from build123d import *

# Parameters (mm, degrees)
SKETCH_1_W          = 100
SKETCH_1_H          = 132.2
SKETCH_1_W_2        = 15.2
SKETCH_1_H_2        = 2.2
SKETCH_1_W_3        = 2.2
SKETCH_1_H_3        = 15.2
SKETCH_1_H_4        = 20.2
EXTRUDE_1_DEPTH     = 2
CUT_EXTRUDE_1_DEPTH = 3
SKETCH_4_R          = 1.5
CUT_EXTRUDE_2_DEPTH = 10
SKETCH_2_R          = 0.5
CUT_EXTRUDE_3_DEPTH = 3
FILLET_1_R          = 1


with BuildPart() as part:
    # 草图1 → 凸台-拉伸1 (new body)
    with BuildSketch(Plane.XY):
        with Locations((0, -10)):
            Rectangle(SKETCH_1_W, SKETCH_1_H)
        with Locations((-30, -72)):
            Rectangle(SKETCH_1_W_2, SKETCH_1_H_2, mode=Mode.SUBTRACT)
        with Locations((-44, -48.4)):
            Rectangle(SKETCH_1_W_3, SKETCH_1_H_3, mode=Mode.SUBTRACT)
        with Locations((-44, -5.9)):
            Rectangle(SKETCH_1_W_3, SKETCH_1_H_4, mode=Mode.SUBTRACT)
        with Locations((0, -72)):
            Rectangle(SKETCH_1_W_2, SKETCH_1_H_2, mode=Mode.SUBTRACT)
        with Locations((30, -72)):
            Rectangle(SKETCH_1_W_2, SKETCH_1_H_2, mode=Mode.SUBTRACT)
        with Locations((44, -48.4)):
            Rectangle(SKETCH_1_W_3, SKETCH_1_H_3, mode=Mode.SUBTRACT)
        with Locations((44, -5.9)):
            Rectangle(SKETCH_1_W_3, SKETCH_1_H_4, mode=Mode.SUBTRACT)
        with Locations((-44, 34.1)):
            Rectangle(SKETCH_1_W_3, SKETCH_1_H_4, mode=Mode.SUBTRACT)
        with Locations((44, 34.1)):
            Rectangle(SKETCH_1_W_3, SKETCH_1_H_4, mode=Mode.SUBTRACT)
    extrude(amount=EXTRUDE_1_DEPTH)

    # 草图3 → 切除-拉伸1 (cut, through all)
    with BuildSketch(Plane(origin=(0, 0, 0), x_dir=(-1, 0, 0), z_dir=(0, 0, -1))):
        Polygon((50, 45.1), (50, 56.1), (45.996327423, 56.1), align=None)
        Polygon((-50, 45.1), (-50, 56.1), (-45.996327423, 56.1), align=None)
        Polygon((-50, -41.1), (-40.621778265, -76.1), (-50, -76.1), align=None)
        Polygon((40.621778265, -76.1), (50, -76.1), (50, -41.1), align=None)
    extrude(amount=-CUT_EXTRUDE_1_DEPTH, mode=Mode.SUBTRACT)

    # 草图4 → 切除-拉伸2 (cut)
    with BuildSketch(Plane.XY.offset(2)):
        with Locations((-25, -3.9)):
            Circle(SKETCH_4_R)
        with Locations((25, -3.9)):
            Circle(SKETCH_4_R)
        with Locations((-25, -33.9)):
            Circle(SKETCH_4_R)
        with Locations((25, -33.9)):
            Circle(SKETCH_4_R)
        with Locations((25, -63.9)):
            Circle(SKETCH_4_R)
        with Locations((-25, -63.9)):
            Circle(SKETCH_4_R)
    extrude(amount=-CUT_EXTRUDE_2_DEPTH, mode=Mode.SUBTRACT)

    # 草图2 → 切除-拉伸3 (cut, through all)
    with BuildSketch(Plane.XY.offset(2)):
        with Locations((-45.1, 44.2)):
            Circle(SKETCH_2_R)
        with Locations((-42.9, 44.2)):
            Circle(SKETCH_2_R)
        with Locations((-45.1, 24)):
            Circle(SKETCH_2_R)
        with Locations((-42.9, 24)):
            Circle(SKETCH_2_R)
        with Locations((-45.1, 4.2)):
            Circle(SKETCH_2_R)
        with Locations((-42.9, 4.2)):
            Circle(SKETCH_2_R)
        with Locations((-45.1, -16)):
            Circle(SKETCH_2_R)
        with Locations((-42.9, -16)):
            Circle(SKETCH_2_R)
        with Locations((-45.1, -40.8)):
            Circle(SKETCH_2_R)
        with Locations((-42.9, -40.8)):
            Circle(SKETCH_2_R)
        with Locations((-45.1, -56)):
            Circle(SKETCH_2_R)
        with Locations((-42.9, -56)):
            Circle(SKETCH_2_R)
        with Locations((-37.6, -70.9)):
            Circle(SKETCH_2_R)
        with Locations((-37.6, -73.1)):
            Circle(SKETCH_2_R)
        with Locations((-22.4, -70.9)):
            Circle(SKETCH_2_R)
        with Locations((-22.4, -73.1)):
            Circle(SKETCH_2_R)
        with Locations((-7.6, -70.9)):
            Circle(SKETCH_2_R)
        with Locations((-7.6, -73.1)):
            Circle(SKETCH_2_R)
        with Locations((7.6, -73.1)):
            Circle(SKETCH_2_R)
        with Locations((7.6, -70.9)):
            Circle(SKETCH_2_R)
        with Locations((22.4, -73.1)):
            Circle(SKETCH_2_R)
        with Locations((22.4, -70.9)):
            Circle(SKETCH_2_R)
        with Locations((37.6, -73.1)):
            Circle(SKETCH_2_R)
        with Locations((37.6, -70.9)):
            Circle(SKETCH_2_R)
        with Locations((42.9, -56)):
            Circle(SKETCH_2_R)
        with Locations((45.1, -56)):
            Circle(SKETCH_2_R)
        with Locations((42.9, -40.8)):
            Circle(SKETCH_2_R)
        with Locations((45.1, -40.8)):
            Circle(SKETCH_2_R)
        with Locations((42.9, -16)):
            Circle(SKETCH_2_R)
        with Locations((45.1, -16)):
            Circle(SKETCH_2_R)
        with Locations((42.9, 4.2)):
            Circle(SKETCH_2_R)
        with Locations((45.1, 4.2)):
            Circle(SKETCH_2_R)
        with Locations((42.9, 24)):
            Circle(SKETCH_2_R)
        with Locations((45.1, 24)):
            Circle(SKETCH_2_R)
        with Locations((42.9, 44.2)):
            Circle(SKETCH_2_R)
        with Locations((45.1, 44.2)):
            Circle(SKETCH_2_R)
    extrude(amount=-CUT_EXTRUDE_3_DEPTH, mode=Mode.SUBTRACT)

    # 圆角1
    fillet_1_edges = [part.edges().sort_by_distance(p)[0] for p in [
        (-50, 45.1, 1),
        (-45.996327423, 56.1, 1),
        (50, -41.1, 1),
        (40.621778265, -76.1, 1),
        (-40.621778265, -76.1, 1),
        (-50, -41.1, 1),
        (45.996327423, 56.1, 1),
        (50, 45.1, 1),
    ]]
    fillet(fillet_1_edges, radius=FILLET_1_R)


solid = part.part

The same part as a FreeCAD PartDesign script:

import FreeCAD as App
import Part
import Sketcher
from FreeCAD import Vector
Q = App.Units.Quantity


def edges_at(feature, points):
    """Names of the edges that pass closest to the given points."""
    edges = feature.Shape.Edges
    near = lambda p: min(range(len(edges)), key=lambda i: edges[i].distToShape(Part.Vertex(*p))[0])
    return sorted({f"Edge{near(p) + 1}" for p in points})


def add_polygon(sketch, points):
    """Adds a closed chain of lines whose ends are joined by coincident constraints."""
    first, n = sketch.GeometryCount, len(points)
    for a, b in zip(points, points[1:] + points[:1]):
        sketch.addGeometry(Part.LineSegment(App.Vector(*a, 0), App.Vector(*b, 0)), False)
    for i in range(n):
        sketch.addConstraint(Sketcher.Constraint("Coincident", first + i, 2, first + (i + 1) % n, 1))

doc = App.newDocument("Part")
body = doc.addObject("PartDesign::Body", "Body")

# Sketch on XY plane
sketch1 = body.newObject("Sketcher::SketchObject", "Sketch")
sketch1.AttachmentSupport = (doc.getObject("XY_Plane"), [""])
sketch1.MapMode = "FlatFace"
add_polygon(sketch1, [(-50, 56.1), (-50, -76.1), (50, -76.1), (50, 56.1)])  # lines 0-3
add_polygon(sketch1, [(-22.4, -73.1), (-37.6, -73.1), (-37.6, -70.9), (-22.4, -70.9)])  # lines 4-7
add_polygon(sketch1, [(-42.9, -56), (-45.1, -56), (-45.1, -40.8), (-42.9, -40.8)])  # lines 8-11
add_polygon(sketch1, [(7.6, -73.1), (-7.6, -73.1), (-7.6, -70.9), (7.6, -70.9)])  # lines 12-15
add_polygon(sketch1, [(37.6, -73.1), (22.4, -73.1), (22.4, -70.9), (37.6, -70.9)])  # lines 16-19
add_polygon(sketch1, [(45.1, -56), (42.9, -56), (42.9, -40.8), (45.1, -40.8)])  # lines 20-23
add_polygon(sketch1, [(-42.9, -16), (-45.1, -16), (-45.1, 4.2), (-42.9, 4.2)])  # lines 24-27
add_polygon(sketch1, [(-42.9, 24), (-45.1, 24), (-45.1, 44.2), (-42.9, 44.2)])  # lines 28-31
add_polygon(sketch1, [(45.1, -16), (42.9, -16), (42.9, 4.2), (45.1, 4.2)])  # lines 32-35
add_polygon(sketch1, [(45.1, 24), (42.9, 24), (42.9, 44.2), (45.1, 44.2)])  # lines 36-39
sketch1.addConstraint(Sketcher.Constraint("Vertical", 0))
sketch1.addConstraint(Sketcher.Constraint("Horizontal", 1))
sketch1.addConstraint(Sketcher.Constraint("Vertical", 2))
sketch1.addConstraint(Sketcher.Constraint("Horizontal", 3))
sketch1.addConstraint(Sketcher.Constraint("Horizontal", 4))
sketch1.addConstraint(Sketcher.Constraint("Vertical", 5))
sketch1.addConstraint(Sketcher.Constraint("Horizontal", 6))
sketch1.addConstraint(Sketcher.Constraint("Vertical", 7))
sketch1.addConstraint(Sketcher.Constraint("Horizontal", 8))
sketch1.addConstraint(Sketcher.Constraint("Vertical", 9))
sketch1.addConstraint(Sketcher.Constraint("Horizontal", 10))
sketch1.addConstraint(Sketcher.Constraint("Vertical", 11))
sketch1.addConstraint(Sketcher.Constraint("Horizontal", 12))
sketch1.addConstraint(Sketcher.Constraint("Vertical", 13))
sketch1.addConstraint(Sketcher.Constraint("Horizontal", 14))
sketch1.addConstraint(Sketcher.Constraint("Vertical", 15))
sketch1.addConstraint(Sketcher.Constraint("Horizontal", 16))
sketch1.addConstraint(Sketcher.Constraint("Vertical", 17))
sketch1.addConstraint(Sketcher.Constraint("Horizontal", 18))
sketch1.addConstraint(Sketcher.Constraint("Vertical", 19))
sketch1.addConstraint(Sketcher.Constraint("Horizontal", 20))
sketch1.addConstraint(Sketcher.Constraint("Vertical", 21))
sketch1.addConstraint(Sketcher.Constraint("Horizontal", 22))
sketch1.addConstraint(Sketcher.Constraint("Vertical", 23))
sketch1.addConstraint(Sketcher.Constraint("Horizontal", 24))
sketch1.addConstraint(Sketcher.Constraint("Vertical", 25))
sketch1.addConstraint(Sketcher.Constraint("Horizontal", 26))
sketch1.addConstraint(Sketcher.Constraint("Vertical", 27))
sketch1.addConstraint(Sketcher.Constraint("Horizontal", 28))
sketch1.addConstraint(Sketcher.Constraint("Vertical", 29))
sketch1.addConstraint(Sketcher.Constraint("Horizontal", 30))
sketch1.addConstraint(Sketcher.Constraint("Vertical", 31))
sketch1.addConstraint(Sketcher.Constraint("Horizontal", 32))
sketch1.addConstraint(Sketcher.Constraint("Vertical", 33))
sketch1.addConstraint(Sketcher.Constraint("Horizontal", 34))
sketch1.addConstraint(Sketcher.Constraint("Vertical", 35))
sketch1.addConstraint(Sketcher.Constraint("Horizontal", 36))
sketch1.addConstraint(Sketcher.Constraint("Vertical", 37))
sketch1.addConstraint(Sketcher.Constraint("Horizontal", 38))
sketch1.addConstraint(Sketcher.Constraint("Vertical", 39))
sketch1.addConstraint(Sketcher.Constraint("Symmetric", 7, 2, 16, 2, -2))
sketch1.addConstraint(Sketcher.Constraint("Symmetric", 5, 2, 18, 2, -2))
sketch1.addConstraint(Sketcher.Constraint("Symmetric", 11, 2, 20, 2, -2))
sketch1.addConstraint(Sketcher.Constraint("Symmetric", 9, 2, 22, 2, -2))
sketch1.addConstraint(Sketcher.Constraint("Symmetric", 27, 2, 32, 2, -2))
sketch1.addConstraint(Sketcher.Constraint("Symmetric", 25, 2, 34, 2, -2))
sketch1.addConstraint(Sketcher.Constraint("Symmetric", 31, 2, 36, 2, -2))
sketch1.addConstraint(Sketcher.Constraint("Symmetric", 29, 2, 38, 2, -2))
sketch1.addConstraint(Sketcher.Constraint("Horizontal", 7, 2, 12, 2))
sketch1.addConstraint(Sketcher.Constraint("Horizontal", 6, 2, 13, 2))
sketch1.addConstraint(Sketcher.Constraint("Vertical", 9, 2, 24, 2))
sketch1.addConstraint(Sketcher.Constraint("Vertical", 11, 2, 26, 2))
sketch1.addConstraint(Sketcher.Constraint("Vertical", 25, 2, 28, 2))
sketch1.addConstraint(Sketcher.Constraint("Vertical", 27, 2, 30, 2))
sketch1.addConstraint(Sketcher.Constraint("Equal", 6, 12))
sketch1.addConstraint(Sketcher.Constraint("Equal", 38, 5))
sketch1.addConstraint(Sketcher.Constraint("Equal", 18, 9))
sketch1.addConstraint(Sketcher.Constraint("Equal", 27, 29))
sketch1.addConstraint(Sketcher.Constraint("DistanceX", 1, 1, 1, 2, Q("100 mm")))
sketch1.addConstraint(Sketcher.Constraint("DistanceX", 4, 2, 4, 1, Q("15.2 mm")))
sketch1.addConstraint(Sketcher.Constraint("DistanceX", 8, 2, 8, 1, Q("2.2 mm")))
sketch1.addConstraint(Sketcher.Constraint("DistanceY", 0, 2, 0, 1, Q("132.2 mm")))
sketch1.addConstraint(Sketcher.Constraint("DistanceY", 25, 1, 25, 2, Q("20.2 mm")))
sketch1.addConstraint(Sketcher.Constraint("DistanceX", 0, 2, -1, 1, Q("50 mm")))
sketch1.addConstraint(Sketcher.Constraint("DistanceY", 8, 2, -1, 1, Q("56 mm")))
sketch1.addConstraint(Sketcher.Constraint("DistanceY", 24, 2, -1, 1, Q("16 mm")))
sketch1.addConstraint(Sketcher.Constraint("DistanceY", -1, 1, 28, 2, Q("24 mm")))
sketch1.addConstraint(Sketcher.Constraint("DistanceY", 0, 2, 4, 2, Q("3 mm")))
sketch1.addConstraint(Sketcher.Constraint("DistanceX", 4, 2, 12, 2, Q("30 mm")))
sketch1.addConstraint(Sketcher.Constraint("DistanceX", 12, 2, 16, 2, Q("30 mm")))
sketch1.addConstraint(Sketcher.Constraint("DistanceY", 0, 2, -1, 1, Q("76.1 mm")))
sketch1.addConstraint(Sketcher.Constraint("DistanceX", 8, 2, -1, 1, Q("45.1 mm")))
pad1 = body.newObject("PartDesign::Pad", "Pad")
pad1.Profile = sketch1
pad1.Length = 2

# Sketch on XY plane
sketch2 = body.newObject("Sketcher::SketchObject", "Sketch001")
sketch2.AttachmentSupport = (doc.getObject("XY_Plane"), [""])
sketch2.MapMode = "FlatFace"
add_polygon(sketch2, [(-50, 45.1), (-50, 56.1), (-46, 56.1)])  # lines 0-2
add_polygon(sketch2, [(50, 56.1), (50, 45.1), (46, 56.1)])  # lines 3-5
add_polygon(sketch2, [(40.6, -76.1), (50, -41.1), (50, -76.1)])  # lines 6-8
add_polygon(sketch2, [(-40.6, -76.1), (-50, -76.1), (-50, -41.1)])  # lines 9-11
sketch2.addConstraint(Sketcher.Constraint("Vertical", 0))
sketch2.addConstraint(Sketcher.Constraint("Horizontal", 1))
sketch2.addConstraint(Sketcher.Constraint("Vertical", 3))
sketch2.addConstraint(Sketcher.Constraint("Horizontal", 5))
sketch2.addConstraint(Sketcher.Constraint("Vertical", 7))
sketch2.addConstraint(Sketcher.Constraint("Horizontal", 8))
sketch2.addConstraint(Sketcher.Constraint("Horizontal", 9))
sketch2.addConstraint(Sketcher.Constraint("Vertical", 10))
sketch2.addConstraint(Sketcher.Constraint("Symmetric", 2, 2, 3, 2, -2))
sketch2.addConstraint(Sketcher.Constraint("Symmetric", 1, 2, 4, 2, -2))
sketch2.addConstraint(Sketcher.Constraint("Symmetric", 7, 2, 9, 2, -2))
sketch2.addConstraint(Sketcher.Constraint("Horizontal", 6, 2, 10, 2))
sketch2.addConstraint(Sketcher.Constraint("Vertical", 5, 2, 6, 2))
sketch2.addConstraint(Sketcher.Constraint("Equal", 8, 9))
sketch2.addConstraint(Sketcher.Constraint("DistanceY", 0, 1, 0, 2, Q("11 mm")))
sketch2.addConstraint(Sketcher.Constraint("DistanceY", 7, 2, 7, 1, Q("35 mm")))
sketch2.addConstraint(Sketcher.Constraint("Angle", 2, Q("-110 deg")))
sketch2.addConstraint(Sketcher.Constraint("Angle", 6, Q("75 deg")))
sketch2.addConstraint(Sketcher.Constraint("DistanceX", 0, 2, -1, 1, Q("50 mm")))
sketch2.addConstraint(Sketcher.Constraint("DistanceY", -1, 1, 0, 2, Q("56.1 mm")))
sketch2.addConstraint(Sketcher.Constraint("DistanceY", 6, 2, -1, 1, Q("41.1 mm")))
pocket1 = body.newObject("PartDesign::Pocket", "Pocket")
pocket1.Profile = sketch2
pocket1.Type = "ThroughAll"
pocket1.Reversed = True

# Sketch on XY plane
sketch3 = body.newObject("Sketcher::SketchObject", "Sketch002")
sketch3.AttachmentSupport = (doc.getObject("XY_Plane"), [""])
sketch3.MapMode = "FlatFace"
sketch3.AttachmentOffset = App.Placement(Vector(0, 0, 2), App.Rotation())
sketch3.addGeometry(Part.Circle(Vector(-25, -3.9, 0), Vector(0, 0, 1), 1.5), False)
sketch3.addGeometry(Part.Circle(Vector(25, -3.9, 0), Vector(0, 0, 1), 1.5), False)
sketch3.addGeometry(Part.Circle(Vector(-25, -33.9, 0), Vector(0, 0, 1), 1.5), False)
sketch3.addGeometry(Part.Circle(Vector(25, -33.9, 0), Vector(0, 0, 1), 1.5), False)
sketch3.addGeometry(Part.Circle(Vector(25, -63.9, 0), Vector(0, 0, 1), 1.5), False)
sketch3.addGeometry(Part.Circle(Vector(-25, -63.9, 0), Vector(0, 0, 1), 1.5), False)
sketch3.addConstraint(Sketcher.Constraint("Equal", 0, 1))
sketch3.addConstraint(Sketcher.Constraint("Equal", 1, 2))
sketch3.addConstraint(Sketcher.Constraint("Equal", 2, 3))
sketch3.addConstraint(Sketcher.Constraint("Equal", 3, 4))
sketch3.addConstraint(Sketcher.Constraint("Equal", 4, 5))
sketch3.addConstraint(Sketcher.Constraint("Symmetric", 0, 3, 1, 3, -2))
sketch3.addConstraint(Sketcher.Constraint("Symmetric", 2, 3, 3, 3, -2))
sketch3.addConstraint(Sketcher.Constraint("Symmetric", 4, 3, 5, 3, -2))
sketch3.addConstraint(Sketcher.Constraint("Vertical", 0, 3, 2, 3))
sketch3.addConstraint(Sketcher.Constraint("Vertical", 3, 3, 4, 3))
sketch3.addConstraint(Sketcher.Constraint("Diameter", 0, Q("3 mm")))
sketch3.addConstraint(Sketcher.Constraint("DistanceX", 0, 3, -1, 1, Q("25 mm")))
sketch3.addConstraint(Sketcher.Constraint("DistanceY", 2, 3, 0, 3, Q("30 mm")))
sketch3.addConstraint(Sketcher.Constraint("DistanceY", 4, 3, 3, 3, Q("30 mm")))
sketch3.addConstraint(Sketcher.Constraint("DistanceY", 0, 3, -1, 1, Q("3.9 mm")))
pocket2 = body.newObject("PartDesign::Pocket", "Pocket001")
pocket2.Profile = sketch3
pocket2.Length = 10

# Sketch on XY plane
sketch4 = body.newObject("Sketcher::SketchObject", "Sketch003")
sketch4.AttachmentSupport = (doc.getObject("XY_Plane"), [""])
sketch4.MapMode = "FlatFace"
sketch4.AttachmentOffset = App.Placement(Vector(0, 0, 2), App.Rotation())
sketch4.addGeometry(Part.Circle(Vector(-45.1, 44.2, 0), Vector(0, 0, 1), 0.5), False)
sketch4.addGeometry(Part.Circle(Vector(-42.9, 44.2, 0), Vector(0, 0, 1), 0.5), False)
sketch4.addGeometry(Part.Circle(Vector(-45.1, 24, 0), Vector(0, 0, 1), 0.5), False)
sketch4.addGeometry(Part.Circle(Vector(-42.9, 24, 0), Vector(0, 0, 1), 0.5), False)
sketch4.addGeometry(Part.Circle(Vector(-45.1, 4.2, 0), Vector(0, 0, 1), 0.5), False)
sketch4.addGeometry(Part.Circle(Vector(-42.9, 4.2, 0), Vector(0, 0, 1), 0.5), False)
sketch4.addGeometry(Part.Circle(Vector(-45.1, -16, 0), Vector(0, 0, 1), 0.5), False)
sketch4.addGeometry(Part.Circle(Vector(-42.9, -16, 0), Vector(0, 0, 1), 0.5), False)
sketch4.addGeometry(Part.Circle(Vector(-45.1, -40.8, 0), Vector(0, 0, 1), 0.5), False)
sketch4.addGeometry(Part.Circle(Vector(-42.9, -40.8, 0), Vector(0, 0, 1), 0.5), False)
sketch4.addGeometry(Part.Circle(Vector(-45.1, -56, 0), Vector(0, 0, 1), 0.5), False)
sketch4.addGeometry(Part.Circle(Vector(-42.9, -56, 0), Vector(0, 0, 1), 0.5), False)
sketch4.addGeometry(Part.Circle(Vector(-37.6, -70.9, 0), Vector(0, 0, 1), 0.5), False)
sketch4.addGeometry(Part.Circle(Vector(-37.6, -73.1, 0), Vector(0, 0, 1), 0.5), False)
sketch4.addGeometry(Part.Circle(Vector(-22.4, -70.9, 0), Vector(0, 0, 1), 0.5), False)
sketch4.addGeometry(Part.Circle(Vector(-22.4, -73.1, 0), Vector(0, 0, 1), 0.5), False)
sketch4.addGeometry(Part.Circle(Vector(-7.6, -70.9, 0), Vector(0, 0, 1), 0.5), False)
sketch4.addGeometry(Part.Circle(Vector(-7.6, -73.1, 0), Vector(0, 0, 1), 0.5), False)
sketch4.addGeometry(Part.Circle(Vector(7.6, -73.1, 0), Vector(0, 0, 1), 0.5), False)
sketch4.addGeometry(Part.Circle(Vector(7.6, -70.9, 0), Vector(0, 0, 1), 0.5), False)
sketch4.addGeometry(Part.Circle(Vector(22.4, -73.1, 0), Vector(0, 0, 1), 0.5), False)
sketch4.addGeometry(Part.Circle(Vector(22.4, -70.9, 0), Vector(0, 0, 1), 0.5), False)
sketch4.addGeometry(Part.Circle(Vector(37.6, -73.1, 0), Vector(0, 0, 1), 0.5), False)
sketch4.addGeometry(Part.Circle(Vector(37.6, -70.9, 0), Vector(0, 0, 1), 0.5), False)
sketch4.addGeometry(Part.Circle(Vector(42.9, -56, 0), Vector(0, 0, 1), 0.5), False)
sketch4.addGeometry(Part.Circle(Vector(45.1, -56, 0), Vector(0, 0, 1), 0.5), False)
sketch4.addGeometry(Part.Circle(Vector(42.9, -40.8, 0), Vector(0, 0, 1), 0.5), False)
sketch4.addGeometry(Part.Circle(Vector(45.1, -40.8, 0), Vector(0, 0, 1), 0.5), False)
sketch4.addGeometry(Part.Circle(Vector(42.9, -16, 0), Vector(0, 0, 1), 0.5), False)
sketch4.addGeometry(Part.Circle(Vector(45.1, -16, 0), Vector(0, 0, 1), 0.5), False)
sketch4.addGeometry(Part.Circle(Vector(42.9, 4.2, 0), Vector(0, 0, 1), 0.5), False)
sketch4.addGeometry(Part.Circle(Vector(45.1, 4.2, 0), Vector(0, 0, 1), 0.5), False)
sketch4.addGeometry(Part.Circle(Vector(42.9, 24, 0), Vector(0, 0, 1), 0.5), False)
sketch4.addGeometry(Part.Circle(Vector(45.1, 24, 0), Vector(0, 0, 1), 0.5), False)
sketch4.addGeometry(Part.Circle(Vector(42.9, 44.2, 0), Vector(0, 0, 1), 0.5), False)
sketch4.addGeometry(Part.Circle(Vector(45.1, 44.2, 0), Vector(0, 0, 1), 0.5), False)
sketch4.addConstraint(Sketcher.Constraint("Equal", 0, 1))
sketch4.addConstraint(Sketcher.Constraint("Equal", 1, 2))
sketch4.addConstraint(Sketcher.Constraint("Equal", 2, 3))
sketch4.addConstraint(Sketcher.Constraint("Equal", 3, 4))
sketch4.addConstraint(Sketcher.Constraint("Equal", 4, 5))
sketch4.addConstraint(Sketcher.Constraint("Equal", 5, 6))
sketch4.addConstraint(Sketcher.Constraint("Equal", 6, 7))
sketch4.addConstraint(Sketcher.Constraint("Equal", 7, 8))
sketch4.addConstraint(Sketcher.Constraint("Equal", 8, 9))
sketch4.addConstraint(Sketcher.Constraint("Equal", 9, 10))
sketch4.addConstraint(Sketcher.Constraint("Equal", 10, 11))
sketch4.addConstraint(Sketcher.Constraint("Equal", 11, 12))
sketch4.addConstraint(Sketcher.Constraint("Equal", 12, 13))
sketch4.addConstraint(Sketcher.Constraint("Equal", 13, 14))
sketch4.addConstraint(Sketcher.Constraint("Equal", 14, 15))
sketch4.addConstraint(Sketcher.Constraint("Equal", 15, 16))
sketch4.addConstraint(Sketcher.Constraint("Equal", 16, 17))
sketch4.addConstraint(Sketcher.Constraint("Equal", 17, 18))
sketch4.addConstraint(Sketcher.Constraint("Equal", 18, 19))
sketch4.addConstraint(Sketcher.Constraint("Equal", 19, 20))
sketch4.addConstraint(Sketcher.Constraint("Equal", 20, 21))
sketch4.addConstraint(Sketcher.Constraint("Equal", 21, 22))
sketch4.addConstraint(Sketcher.Constraint("Equal", 22, 23))
sketch4.addConstraint(Sketcher.Constraint("Equal", 23, 24))
sketch4.addConstraint(Sketcher.Constraint("Equal", 24, 25))
sketch4.addConstraint(Sketcher.Constraint("Equal", 25, 26))
sketch4.addConstraint(Sketcher.Constraint("Equal", 26, 27))
sketch4.addConstraint(Sketcher.Constraint("Equal", 27, 28))
sketch4.addConstraint(Sketcher.Constraint("Equal", 28, 29))
sketch4.addConstraint(Sketcher.Constraint("Equal", 29, 30))
sketch4.addConstraint(Sketcher.Constraint("Equal", 30, 31))
sketch4.addConstraint(Sketcher.Constraint("Equal", 31, 32))
sketch4.addConstraint(Sketcher.Constraint("Equal", 32, 33))
sketch4.addConstraint(Sketcher.Constraint("Equal", 33, 34))
sketch4.addConstraint(Sketcher.Constraint("Equal", 34, 35))
sketch4.addConstraint(Sketcher.Constraint("Symmetric", 17, 3, 18, 3, -2))
sketch4.addConstraint(Sketcher.Constraint("Symmetric", 16, 3, 19, 3, -2))
sketch4.addConstraint(Sketcher.Constraint("Symmetric", 15, 3, 20, 3, -2))
sketch4.addConstraint(Sketcher.Constraint("Symmetric", 14, 3, 21, 3, -2))
sketch4.addConstraint(Sketcher.Constraint("Symmetric", 13, 3, 22, 3, -2))
sketch4.addConstraint(Sketcher.Constraint("Symmetric", 12, 3, 23, 3, -2))
sketch4.addConstraint(Sketcher.Constraint("Symmetric", 11, 3, 24, 3, -2))
sketch4.addConstraint(Sketcher.Constraint("Symmetric", 10, 3, 25, 3, -2))
sketch4.addConstraint(Sketcher.Constraint("Symmetric", 9, 3, 26, 3, -2))
sketch4.addConstraint(Sketcher.Constraint("Symmetric", 8, 3, 27, 3, -2))
sketch4.addConstraint(Sketcher.Constraint("Symmetric", 7, 3, 28, 3, -2))
sketch4.addConstraint(Sketcher.Constraint("Symmetric", 6, 3, 29, 3, -2))
sketch4.addConstraint(Sketcher.Constraint("Symmetric", 5, 3, 30, 3, -2))
sketch4.addConstraint(Sketcher.Constraint("Symmetric", 4, 3, 31, 3, -2))
sketch4.addConstraint(Sketcher.Constraint("Symmetric", 3, 3, 32, 3, -2))
sketch4.addConstraint(Sketcher.Constraint("Symmetric", 2, 3, 33, 3, -2))
sketch4.addConstraint(Sketcher.Constraint("Symmetric", 1, 3, 34, 3, -2))
sketch4.addConstraint(Sketcher.Constraint("Symmetric", 0, 3, 35, 3, -2))
sketch4.addConstraint(Sketcher.Constraint("Horizontal", 0, 3, 1, 3))
sketch4.addConstraint(Sketcher.Constraint("Horizontal", 2, 3, 3, 3))
sketch4.addConstraint(Sketcher.Constraint("Horizontal", 4, 3, 5, 3))
sketch4.addConstraint(Sketcher.Constraint("Horizontal", 6, 3, 7, 3))
sketch4.addConstraint(Sketcher.Constraint("Horizontal", 8, 3, 9, 3))
sketch4.addConstraint(Sketcher.Constraint("Horizontal", 10, 3, 11, 3))
sketch4.addConstraint(Sketcher.Constraint("Horizontal", 12, 3, 14, 3))
sketch4.addConstraint(Sketcher.Constraint("Horizontal", 13, 3, 15, 3))
sketch4.addConstraint(Sketcher.Constraint("Horizontal", 14, 3, 16, 3))
sketch4.addConstraint(Sketcher.Constraint("Horizontal", 15, 3, 17, 3))
sketch4.addConstraint(Sketcher.Constraint("Vertical", 0, 3, 2, 3))
sketch4.addConstraint(Sketcher.Constraint("Vertical", 1, 3, 3, 3))
sketch4.addConstraint(Sketcher.Constraint("Vertical", 2, 3, 4, 3))
sketch4.addConstraint(Sketcher.Constraint("Vertical", 3, 3, 5, 3))
sketch4.addConstraint(Sketcher.Constraint("Vertical", 4, 3, 6, 3))
sketch4.addConstraint(Sketcher.Constraint("Vertical", 5, 3, 7, 3))
sketch4.addConstraint(Sketcher.Constraint("Vertical", 6, 3, 8, 3))
sketch4.addConstraint(Sketcher.Constraint("Vertical", 7, 3, 9, 3))
sketch4.addConstraint(Sketcher.Constraint("Vertical", 8, 3, 10, 3))
sketch4.addConstraint(Sketcher.Constraint("Vertical", 9, 3, 11, 3))
sketch4.addConstraint(Sketcher.Constraint("Vertical", 12, 3, 13, 3))
sketch4.addConstraint(Sketcher.Constraint("Vertical", 14, 3, 15, 3))
sketch4.addConstraint(Sketcher.Constraint("Vertical", 16, 3, 17, 3))
sketch4.addConstraint(Sketcher.Constraint("Diameter", 0, Q("1 mm")))
sketch4.addConstraint(Sketcher.Constraint("DistanceY", -1, 1, 2, 3, Q("24 mm")))
sketch4.addConstraint(Sketcher.Constraint("DistanceY", 6, 3, -1, 1, Q("16 mm")))
sketch4.addConstraint(Sketcher.Constraint("DistanceY", 10, 3, -1, 1, Q("56 mm")))
sketch4.addConstraint(Sketcher.Constraint("DistanceY", 4, 3, 0, 3, Q("40 mm")))
sketch4.addConstraint(Sketcher.Constraint("DistanceY", 8, 3, 4, 3, Q("45 mm")))
sketch4.addConstraint(Sketcher.Constraint("DistanceX", 12, 3, 16, 3, Q("30 mm")))
sketch4.addConstraint(Sketcher.Constraint("DistanceX", 15, 3, 18, 3, Q("30 mm")))
sketch4.addConstraint(Sketcher.Constraint("DistanceX", 0, 3, -1, 1, Q("45.1 mm")))
sketch4.addConstraint(Sketcher.Constraint("DistanceY", -1, 1, 0, 3, Q("44.2 mm")))
sketch4.addConstraint(Sketcher.Constraint("DistanceX", 1, 3, -1, 1, Q("42.9 mm")))
sketch4.addConstraint(Sketcher.Constraint("DistanceX", 12, 3, -1, 1, Q("37.6 mm")))
sketch4.addConstraint(Sketcher.Constraint("DistanceY", 12, 3, -1, 1, Q("70.9 mm")))
sketch4.addConstraint(Sketcher.Constraint("DistanceY", 13, 3, -1, 1, Q("73.1 mm")))
pocket3 = body.newObject("PartDesign::Pocket", "Pocket002")
pocket3.Profile = sketch4
pocket3.Type = "ThroughAll"
doc.recompute()

fillet = body.newObject("PartDesign::Fillet", "Fillet")
fillet.Base = (pocket3, edges_at(pocket3, [
    (-50, 45.1, 1),
    (-45.996, 56.1, 1),
    (50, -41.1, 1),
    (40.622, -76.1, 1),
    (-40.622, -76.1, 1),
    (-50, -41.1, 1),
    (45.996, 56.1, 1),
    (50, 45.1, 1),
]))
fillet.Radius = 1

doc.recompute()
